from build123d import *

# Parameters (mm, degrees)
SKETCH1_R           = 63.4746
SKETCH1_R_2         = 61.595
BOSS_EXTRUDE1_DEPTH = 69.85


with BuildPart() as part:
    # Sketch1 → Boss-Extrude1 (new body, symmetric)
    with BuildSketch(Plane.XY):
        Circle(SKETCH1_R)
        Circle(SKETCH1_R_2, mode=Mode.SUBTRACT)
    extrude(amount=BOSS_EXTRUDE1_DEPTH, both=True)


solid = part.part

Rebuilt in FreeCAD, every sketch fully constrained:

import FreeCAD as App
import Part
import Sketcher
from FreeCAD import Vector
Q = App.Units.Quantity

doc = App.newDocument("Part")
body = doc.addObject("PartDesign::Body", "Body")

sketch1 = body.newObject("Sketcher::SketchObject", "Sketch")
sketch1.AttachmentSupport = (doc.getObject("XY_Plane"), [""])
sketch1.MapMode = "FlatFace"
sketch1.addGeometry(Part.Circle(Vector(0, 0, 0), Vector(0, 0, 1), 63.4746), False)
sketch1.addGeometry(Part.Circle(Vector(0, 0, 0), Vector(0, 0, 1), 61.595), False)
sketch1.addConstraint(Sketcher.Constraint("Coincident", 0, 3, -1, 1))
sketch1.addConstraint(Sketcher.Constraint("Coincident", 1, 3, -1, 1))
sketch1.addConstraint(Sketcher.Constraint("Diameter", 1, Q("4.85 in")))
sketch1.addConstraint(Sketcher.Constraint("Diameter", 0, Q("4.998 in")))
pad1 = body.newObject("PartDesign::Pad", "Pad")
pad1.Profile = sketch1
pad1.Length = Q("5.5 in")
pad1.Midplane = True

doc.recompute()
